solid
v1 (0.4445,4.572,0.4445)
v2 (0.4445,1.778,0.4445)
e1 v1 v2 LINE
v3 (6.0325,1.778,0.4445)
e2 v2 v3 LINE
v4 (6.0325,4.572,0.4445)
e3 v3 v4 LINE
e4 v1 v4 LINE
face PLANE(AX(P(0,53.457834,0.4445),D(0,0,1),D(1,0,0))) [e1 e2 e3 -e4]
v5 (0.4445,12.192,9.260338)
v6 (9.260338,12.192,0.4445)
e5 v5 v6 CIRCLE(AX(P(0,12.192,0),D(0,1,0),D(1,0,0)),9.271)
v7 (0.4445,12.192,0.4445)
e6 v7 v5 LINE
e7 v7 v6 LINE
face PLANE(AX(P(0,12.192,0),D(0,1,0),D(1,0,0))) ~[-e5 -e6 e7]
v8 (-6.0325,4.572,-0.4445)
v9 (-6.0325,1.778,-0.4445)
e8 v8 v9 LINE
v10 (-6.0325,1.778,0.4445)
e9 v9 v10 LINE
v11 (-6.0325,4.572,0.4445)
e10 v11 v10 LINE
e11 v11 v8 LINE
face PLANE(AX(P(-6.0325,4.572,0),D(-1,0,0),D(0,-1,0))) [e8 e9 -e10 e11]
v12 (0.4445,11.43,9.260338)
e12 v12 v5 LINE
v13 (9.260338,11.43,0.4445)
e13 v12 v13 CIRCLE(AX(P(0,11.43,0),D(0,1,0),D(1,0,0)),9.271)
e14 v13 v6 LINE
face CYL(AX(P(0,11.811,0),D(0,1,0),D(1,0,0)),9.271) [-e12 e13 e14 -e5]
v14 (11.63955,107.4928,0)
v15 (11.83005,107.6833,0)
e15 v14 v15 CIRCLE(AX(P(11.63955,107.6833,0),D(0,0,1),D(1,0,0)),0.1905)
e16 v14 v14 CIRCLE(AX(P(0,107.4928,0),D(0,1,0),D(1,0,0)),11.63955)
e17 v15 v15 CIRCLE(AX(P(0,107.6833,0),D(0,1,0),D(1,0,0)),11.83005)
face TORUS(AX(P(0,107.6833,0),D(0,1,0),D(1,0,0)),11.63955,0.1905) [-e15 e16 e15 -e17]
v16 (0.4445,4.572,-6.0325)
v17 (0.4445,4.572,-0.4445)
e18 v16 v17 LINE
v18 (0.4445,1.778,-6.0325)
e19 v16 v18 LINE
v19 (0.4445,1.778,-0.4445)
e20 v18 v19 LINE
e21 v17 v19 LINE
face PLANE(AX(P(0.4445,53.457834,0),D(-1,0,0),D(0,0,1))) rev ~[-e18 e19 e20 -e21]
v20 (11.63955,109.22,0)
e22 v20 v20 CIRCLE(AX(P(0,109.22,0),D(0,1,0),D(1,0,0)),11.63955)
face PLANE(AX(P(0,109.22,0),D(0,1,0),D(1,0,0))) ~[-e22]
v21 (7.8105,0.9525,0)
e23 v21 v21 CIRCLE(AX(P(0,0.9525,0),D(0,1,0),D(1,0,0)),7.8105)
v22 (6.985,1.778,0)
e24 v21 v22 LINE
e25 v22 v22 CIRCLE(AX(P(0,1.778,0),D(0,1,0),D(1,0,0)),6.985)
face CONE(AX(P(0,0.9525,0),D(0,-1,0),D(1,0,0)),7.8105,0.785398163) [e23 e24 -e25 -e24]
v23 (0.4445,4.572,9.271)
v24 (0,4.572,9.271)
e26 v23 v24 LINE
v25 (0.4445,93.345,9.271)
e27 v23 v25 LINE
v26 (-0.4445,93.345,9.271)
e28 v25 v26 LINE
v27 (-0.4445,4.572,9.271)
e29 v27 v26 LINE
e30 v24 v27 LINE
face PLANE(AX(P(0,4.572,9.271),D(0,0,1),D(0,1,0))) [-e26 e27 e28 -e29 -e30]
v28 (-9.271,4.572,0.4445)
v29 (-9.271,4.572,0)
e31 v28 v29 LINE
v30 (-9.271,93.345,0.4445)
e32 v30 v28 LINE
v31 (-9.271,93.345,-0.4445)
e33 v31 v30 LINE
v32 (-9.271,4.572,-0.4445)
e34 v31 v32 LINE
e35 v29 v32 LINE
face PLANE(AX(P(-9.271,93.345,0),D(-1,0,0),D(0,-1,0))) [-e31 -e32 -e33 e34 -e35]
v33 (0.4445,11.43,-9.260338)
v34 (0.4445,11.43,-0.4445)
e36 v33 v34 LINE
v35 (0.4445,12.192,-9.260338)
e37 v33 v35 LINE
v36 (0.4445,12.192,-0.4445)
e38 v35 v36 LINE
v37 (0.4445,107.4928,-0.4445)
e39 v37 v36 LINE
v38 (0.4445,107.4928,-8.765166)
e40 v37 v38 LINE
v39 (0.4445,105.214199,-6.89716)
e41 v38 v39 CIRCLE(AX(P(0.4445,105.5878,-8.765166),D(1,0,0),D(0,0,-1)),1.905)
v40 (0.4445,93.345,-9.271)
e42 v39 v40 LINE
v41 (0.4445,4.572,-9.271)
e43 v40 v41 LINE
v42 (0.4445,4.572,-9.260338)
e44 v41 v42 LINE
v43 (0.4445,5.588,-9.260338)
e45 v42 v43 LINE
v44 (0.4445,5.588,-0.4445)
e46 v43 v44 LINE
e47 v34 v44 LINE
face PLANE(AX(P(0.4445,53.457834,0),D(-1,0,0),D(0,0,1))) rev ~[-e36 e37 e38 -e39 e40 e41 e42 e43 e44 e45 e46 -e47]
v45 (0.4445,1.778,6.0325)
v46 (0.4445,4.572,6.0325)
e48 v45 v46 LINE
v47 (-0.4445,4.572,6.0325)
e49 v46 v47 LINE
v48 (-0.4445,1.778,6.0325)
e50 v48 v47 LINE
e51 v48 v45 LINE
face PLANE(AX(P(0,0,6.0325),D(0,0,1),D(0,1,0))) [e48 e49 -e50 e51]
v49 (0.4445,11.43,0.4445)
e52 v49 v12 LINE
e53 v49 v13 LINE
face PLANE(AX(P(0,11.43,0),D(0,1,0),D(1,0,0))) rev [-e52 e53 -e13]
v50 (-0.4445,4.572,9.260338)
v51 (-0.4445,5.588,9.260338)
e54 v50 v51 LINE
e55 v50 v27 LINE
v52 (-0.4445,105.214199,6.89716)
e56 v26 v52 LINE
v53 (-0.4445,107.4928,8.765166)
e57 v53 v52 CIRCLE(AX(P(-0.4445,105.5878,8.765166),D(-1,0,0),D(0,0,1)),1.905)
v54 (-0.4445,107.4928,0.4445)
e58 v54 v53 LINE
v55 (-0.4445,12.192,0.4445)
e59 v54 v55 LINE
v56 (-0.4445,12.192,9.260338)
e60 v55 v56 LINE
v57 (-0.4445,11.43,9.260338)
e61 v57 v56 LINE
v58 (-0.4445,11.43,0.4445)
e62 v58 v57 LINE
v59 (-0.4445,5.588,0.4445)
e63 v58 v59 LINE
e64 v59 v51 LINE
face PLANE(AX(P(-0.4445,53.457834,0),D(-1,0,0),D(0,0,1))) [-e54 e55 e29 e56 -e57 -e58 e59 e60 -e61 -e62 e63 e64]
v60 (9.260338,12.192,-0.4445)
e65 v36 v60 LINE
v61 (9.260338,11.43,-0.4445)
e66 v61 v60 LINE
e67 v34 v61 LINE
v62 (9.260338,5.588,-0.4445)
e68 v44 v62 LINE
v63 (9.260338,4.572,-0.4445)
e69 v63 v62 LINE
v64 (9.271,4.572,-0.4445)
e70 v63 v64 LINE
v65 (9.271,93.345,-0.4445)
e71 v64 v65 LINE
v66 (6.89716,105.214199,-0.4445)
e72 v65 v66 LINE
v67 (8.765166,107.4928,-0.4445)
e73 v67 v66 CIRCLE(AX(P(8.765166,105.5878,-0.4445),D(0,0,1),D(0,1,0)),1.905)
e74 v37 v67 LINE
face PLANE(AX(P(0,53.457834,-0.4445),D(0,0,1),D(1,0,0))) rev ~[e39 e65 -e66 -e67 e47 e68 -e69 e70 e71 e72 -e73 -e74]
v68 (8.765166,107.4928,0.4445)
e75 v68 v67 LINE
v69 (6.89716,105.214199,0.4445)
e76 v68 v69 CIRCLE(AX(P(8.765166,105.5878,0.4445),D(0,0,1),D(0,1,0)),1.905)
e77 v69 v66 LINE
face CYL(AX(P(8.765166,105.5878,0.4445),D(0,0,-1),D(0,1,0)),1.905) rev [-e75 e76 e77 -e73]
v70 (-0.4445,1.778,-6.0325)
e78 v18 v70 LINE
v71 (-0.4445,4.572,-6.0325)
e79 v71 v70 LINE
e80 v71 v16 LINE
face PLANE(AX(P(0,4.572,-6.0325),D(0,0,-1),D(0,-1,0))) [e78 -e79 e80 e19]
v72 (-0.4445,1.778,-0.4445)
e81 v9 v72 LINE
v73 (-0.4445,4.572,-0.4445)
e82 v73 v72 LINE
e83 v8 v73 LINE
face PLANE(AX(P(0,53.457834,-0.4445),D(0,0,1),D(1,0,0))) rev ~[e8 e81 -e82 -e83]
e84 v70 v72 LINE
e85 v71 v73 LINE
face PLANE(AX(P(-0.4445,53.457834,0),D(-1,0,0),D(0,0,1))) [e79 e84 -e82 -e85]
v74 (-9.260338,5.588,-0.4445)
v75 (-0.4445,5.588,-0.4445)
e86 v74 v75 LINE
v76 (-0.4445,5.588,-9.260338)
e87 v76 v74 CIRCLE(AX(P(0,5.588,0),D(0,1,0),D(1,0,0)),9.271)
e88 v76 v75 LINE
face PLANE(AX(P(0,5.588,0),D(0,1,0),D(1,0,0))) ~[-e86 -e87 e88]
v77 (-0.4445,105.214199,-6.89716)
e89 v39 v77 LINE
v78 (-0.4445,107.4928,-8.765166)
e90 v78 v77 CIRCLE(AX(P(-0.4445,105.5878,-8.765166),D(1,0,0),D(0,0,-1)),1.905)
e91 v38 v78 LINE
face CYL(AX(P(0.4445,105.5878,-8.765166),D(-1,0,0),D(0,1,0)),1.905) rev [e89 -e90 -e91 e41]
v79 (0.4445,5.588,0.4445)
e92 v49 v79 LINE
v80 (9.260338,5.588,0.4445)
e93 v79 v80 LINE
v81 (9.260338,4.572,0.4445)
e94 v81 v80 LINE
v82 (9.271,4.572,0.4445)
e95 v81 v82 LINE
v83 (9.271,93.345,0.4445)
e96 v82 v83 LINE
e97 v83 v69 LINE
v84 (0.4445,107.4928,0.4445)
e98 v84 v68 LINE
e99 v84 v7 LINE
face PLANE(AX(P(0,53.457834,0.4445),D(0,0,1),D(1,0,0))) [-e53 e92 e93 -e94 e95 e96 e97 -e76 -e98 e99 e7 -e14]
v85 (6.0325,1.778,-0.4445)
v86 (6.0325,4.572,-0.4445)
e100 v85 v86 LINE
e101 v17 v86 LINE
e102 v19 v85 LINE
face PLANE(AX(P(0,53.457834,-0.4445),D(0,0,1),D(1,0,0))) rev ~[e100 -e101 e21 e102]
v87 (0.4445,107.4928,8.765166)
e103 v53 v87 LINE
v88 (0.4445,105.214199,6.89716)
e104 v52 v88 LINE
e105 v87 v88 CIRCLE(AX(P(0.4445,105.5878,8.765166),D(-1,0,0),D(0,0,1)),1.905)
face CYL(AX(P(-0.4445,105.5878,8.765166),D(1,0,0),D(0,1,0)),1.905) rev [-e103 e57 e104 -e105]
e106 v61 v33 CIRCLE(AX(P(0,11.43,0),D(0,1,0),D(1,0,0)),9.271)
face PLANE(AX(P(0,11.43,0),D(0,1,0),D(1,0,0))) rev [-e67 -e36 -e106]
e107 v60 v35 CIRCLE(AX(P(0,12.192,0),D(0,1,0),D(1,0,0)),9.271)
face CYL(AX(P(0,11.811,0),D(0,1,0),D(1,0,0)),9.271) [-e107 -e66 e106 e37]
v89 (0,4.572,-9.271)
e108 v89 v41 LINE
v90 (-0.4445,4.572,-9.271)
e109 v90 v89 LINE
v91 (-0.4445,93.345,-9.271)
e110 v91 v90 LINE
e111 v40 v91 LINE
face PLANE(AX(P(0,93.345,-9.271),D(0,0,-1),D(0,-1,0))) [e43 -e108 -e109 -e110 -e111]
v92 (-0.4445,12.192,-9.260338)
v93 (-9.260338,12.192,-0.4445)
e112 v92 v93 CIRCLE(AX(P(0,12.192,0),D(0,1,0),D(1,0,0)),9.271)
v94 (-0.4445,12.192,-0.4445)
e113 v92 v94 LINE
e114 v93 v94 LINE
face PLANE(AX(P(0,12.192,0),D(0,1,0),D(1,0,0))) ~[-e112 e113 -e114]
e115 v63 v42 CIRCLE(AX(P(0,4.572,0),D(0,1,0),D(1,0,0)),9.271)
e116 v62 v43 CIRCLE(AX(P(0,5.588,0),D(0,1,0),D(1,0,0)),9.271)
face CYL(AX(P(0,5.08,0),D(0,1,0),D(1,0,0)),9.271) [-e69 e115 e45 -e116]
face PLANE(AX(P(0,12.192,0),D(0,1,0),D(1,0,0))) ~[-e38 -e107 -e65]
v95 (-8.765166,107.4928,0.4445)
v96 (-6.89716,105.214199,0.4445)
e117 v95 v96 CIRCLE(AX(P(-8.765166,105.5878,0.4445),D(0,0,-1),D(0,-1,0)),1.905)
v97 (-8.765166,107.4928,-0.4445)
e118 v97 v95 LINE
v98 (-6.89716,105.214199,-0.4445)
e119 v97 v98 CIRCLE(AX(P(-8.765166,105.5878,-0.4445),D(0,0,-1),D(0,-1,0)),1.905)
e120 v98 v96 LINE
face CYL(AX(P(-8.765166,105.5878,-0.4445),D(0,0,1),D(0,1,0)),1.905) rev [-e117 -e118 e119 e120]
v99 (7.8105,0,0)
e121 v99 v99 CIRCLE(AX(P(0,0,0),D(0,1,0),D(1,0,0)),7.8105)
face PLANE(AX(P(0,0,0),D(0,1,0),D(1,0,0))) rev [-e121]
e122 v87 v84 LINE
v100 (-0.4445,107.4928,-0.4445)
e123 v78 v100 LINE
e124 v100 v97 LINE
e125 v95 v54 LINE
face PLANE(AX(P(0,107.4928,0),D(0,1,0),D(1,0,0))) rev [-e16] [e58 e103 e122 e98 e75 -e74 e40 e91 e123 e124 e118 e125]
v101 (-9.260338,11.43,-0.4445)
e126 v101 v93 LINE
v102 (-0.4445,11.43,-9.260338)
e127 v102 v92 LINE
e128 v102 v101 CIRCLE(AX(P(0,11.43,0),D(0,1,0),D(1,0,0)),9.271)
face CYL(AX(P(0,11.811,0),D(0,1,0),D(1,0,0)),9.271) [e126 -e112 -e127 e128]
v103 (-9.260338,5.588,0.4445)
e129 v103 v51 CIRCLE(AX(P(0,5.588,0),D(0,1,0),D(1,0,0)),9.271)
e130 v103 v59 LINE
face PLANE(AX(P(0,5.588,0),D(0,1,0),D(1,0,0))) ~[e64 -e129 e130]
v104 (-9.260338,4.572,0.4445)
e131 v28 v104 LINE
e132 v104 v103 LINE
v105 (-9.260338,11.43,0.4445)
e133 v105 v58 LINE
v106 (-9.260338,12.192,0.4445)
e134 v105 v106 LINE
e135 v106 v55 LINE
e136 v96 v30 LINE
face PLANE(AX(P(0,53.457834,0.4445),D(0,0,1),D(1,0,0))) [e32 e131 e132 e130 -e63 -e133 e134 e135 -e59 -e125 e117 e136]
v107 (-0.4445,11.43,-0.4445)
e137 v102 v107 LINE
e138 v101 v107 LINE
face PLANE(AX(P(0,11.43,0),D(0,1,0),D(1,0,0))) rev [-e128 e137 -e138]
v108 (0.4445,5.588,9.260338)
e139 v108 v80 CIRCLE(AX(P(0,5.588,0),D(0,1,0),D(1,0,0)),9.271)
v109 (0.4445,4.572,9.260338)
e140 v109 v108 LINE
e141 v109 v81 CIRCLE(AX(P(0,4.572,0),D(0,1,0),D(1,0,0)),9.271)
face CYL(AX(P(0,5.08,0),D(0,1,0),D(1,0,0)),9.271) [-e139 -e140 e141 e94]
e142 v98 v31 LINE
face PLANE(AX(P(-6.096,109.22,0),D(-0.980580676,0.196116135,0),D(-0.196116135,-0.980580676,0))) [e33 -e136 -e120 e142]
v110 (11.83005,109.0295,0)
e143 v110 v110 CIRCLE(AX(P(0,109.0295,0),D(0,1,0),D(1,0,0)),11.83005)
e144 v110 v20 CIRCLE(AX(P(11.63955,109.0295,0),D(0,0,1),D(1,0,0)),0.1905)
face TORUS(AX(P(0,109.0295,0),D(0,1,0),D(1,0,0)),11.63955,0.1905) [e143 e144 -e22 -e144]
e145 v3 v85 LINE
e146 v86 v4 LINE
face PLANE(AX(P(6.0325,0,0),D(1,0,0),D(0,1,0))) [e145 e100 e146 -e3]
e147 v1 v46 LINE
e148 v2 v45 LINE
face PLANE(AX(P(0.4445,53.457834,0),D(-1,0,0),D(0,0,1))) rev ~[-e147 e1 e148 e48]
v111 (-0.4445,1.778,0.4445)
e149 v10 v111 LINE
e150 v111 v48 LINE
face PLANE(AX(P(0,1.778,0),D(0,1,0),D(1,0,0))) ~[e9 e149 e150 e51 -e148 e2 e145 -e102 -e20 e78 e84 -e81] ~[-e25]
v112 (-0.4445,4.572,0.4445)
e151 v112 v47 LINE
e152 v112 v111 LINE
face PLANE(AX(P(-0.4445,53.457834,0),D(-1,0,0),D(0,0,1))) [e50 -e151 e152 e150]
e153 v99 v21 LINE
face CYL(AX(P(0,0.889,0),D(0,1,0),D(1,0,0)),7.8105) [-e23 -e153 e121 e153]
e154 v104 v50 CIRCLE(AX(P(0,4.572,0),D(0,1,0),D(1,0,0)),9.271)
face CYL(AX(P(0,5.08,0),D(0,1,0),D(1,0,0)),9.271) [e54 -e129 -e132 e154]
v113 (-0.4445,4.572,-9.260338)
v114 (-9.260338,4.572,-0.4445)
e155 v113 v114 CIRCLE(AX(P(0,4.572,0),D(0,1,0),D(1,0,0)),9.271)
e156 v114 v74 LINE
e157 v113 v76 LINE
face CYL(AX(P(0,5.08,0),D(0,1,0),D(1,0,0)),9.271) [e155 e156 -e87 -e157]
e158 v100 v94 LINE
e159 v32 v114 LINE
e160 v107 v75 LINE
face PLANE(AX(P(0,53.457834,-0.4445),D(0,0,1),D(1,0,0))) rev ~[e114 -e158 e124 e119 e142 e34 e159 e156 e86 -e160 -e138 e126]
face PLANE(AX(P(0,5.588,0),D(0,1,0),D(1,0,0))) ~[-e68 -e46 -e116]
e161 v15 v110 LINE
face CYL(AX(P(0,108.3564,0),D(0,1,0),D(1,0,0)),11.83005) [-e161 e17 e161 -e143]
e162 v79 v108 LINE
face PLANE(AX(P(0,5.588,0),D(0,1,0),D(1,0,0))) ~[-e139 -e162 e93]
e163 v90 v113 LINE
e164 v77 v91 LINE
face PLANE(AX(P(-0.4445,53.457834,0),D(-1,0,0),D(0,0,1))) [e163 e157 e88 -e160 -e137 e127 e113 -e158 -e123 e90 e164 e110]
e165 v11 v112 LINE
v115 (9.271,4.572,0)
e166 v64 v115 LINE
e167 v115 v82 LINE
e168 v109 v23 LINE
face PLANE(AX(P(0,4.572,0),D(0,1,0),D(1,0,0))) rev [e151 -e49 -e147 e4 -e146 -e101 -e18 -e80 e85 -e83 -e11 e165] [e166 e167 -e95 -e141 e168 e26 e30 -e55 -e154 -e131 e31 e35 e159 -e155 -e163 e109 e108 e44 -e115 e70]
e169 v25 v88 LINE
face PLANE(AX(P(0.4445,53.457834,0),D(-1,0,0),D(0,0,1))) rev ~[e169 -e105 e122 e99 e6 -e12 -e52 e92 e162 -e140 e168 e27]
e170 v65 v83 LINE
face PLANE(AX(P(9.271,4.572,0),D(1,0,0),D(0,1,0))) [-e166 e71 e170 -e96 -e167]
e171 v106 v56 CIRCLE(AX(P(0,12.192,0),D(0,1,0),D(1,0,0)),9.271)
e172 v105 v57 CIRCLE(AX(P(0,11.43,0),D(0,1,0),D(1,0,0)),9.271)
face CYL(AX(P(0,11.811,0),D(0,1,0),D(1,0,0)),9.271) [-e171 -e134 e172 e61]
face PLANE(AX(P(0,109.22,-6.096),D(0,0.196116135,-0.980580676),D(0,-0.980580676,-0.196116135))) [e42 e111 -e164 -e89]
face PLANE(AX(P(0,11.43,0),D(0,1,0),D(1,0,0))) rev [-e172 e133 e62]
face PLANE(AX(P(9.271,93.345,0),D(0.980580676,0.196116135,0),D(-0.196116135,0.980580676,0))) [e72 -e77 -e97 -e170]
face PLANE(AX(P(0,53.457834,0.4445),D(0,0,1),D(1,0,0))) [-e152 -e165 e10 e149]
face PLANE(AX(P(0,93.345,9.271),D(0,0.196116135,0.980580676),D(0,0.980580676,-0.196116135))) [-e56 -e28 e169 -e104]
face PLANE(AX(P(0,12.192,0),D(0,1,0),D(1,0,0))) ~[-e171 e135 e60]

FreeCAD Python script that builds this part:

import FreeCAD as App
import Part
import Sketcher
Q = App.Units.Quantity


def edges_at(feature, points):
    """Names of the edges that pass closest to the given points."""
    edges = feature.Shape.Edges
    near = lambda p: min(range(len(edges)), key=lambda i: edges[i].distToShape(Part.Vertex(*p))[0])
    return sorted({f"Edge{near(p) + 1}" for p in points})

doc = App.newDocument("Part")
body = doc.addObject("PartDesign::Body", "Body")

# Sketch on XY plane
sketch1 = doc.addObject("Sketcher::SketchObject", "Sketch")
body.addObject(sketch1)
sketch1.AttachmentSupport = (doc.XY_Plane, [""])
sketch1.MapMode = "FlatFace"
sketch1.addGeometry([
    Part.LineSegment(App.Vector(-6, 0, 0), App.Vector(6, 0, 0)),  # 0
    Part.LineSegment(App.Vector(6, 0, 0), App.Vector(6, 4.6, 0)),  # 1
    Part.LineSegment(App.Vector(6, 4.6, 0), App.Vector(9.3, 4.6, 0)),  # 2
    Part.LineSegment(App.Vector(9.3, 4.6, 0), App.Vector(9.3, 93.3, 0)),  # 3
    Part.LineSegment(App.Vector(9.3, 93.3, 0), App.Vector(6.1, 109.2, 0)),  # 4
    Part.LineSegment(App.Vector(6.1, 109.2, 0), App.Vector(-6.1, 109.2, 0)),  # 5
    Part.LineSegment(App.Vector(-6.1, 109.2, 0), App.Vector(-9.3, 93.3, 0)),  # 6
    Part.LineSegment(App.Vector(-9.3, 93.3, 0), App.Vector(-9.3, 4.6, 0)),  # 7
    Part.LineSegment(App.Vector(-9.3, 4.6, 0), App.Vector(-6, 4.6, 0)),  # 8
    Part.LineSegment(App.Vector(-6, 4.6, 0), App.Vector(-6, 0, 0)),  # 9
], False)
sketch1.addConstraint([
    Sketcher.Constraint("Coincident", 0, 2, 1, 1),
    Sketcher.Constraint("Coincident", 1, 2, 2, 1),
    Sketcher.Constraint("Coincident", 2, 2, 3, 1),
    Sketcher.Constraint("Coincident", 3, 2, 4, 1),
    Sketcher.Constraint("Coincident", 4, 2, 5, 1),
    Sketcher.Constraint("Coincident", 5, 2, 6, 1),
    Sketcher.Constraint("Coincident", 6, 2, 7, 1),
    Sketcher.Constraint("Coincident", 7, 2, 8, 1),
    Sketcher.Constraint("Coincident", 8, 2, 9, 1),
    Sketcher.Constraint("Coincident", 9, 2, 0, 1),
    Sketcher.Constraint("Horizontal", 0),
    Sketcher.Constraint("Vertical", 1),
    Sketcher.Constraint("Horizontal", 2),
    Sketcher.Constraint("Vertical", 3),
    Sketcher.Constraint("Horizontal", 5),
    Sketcher.Constraint("Vertical", 7),
    Sketcher.Constraint("Horizontal", 8),
    Sketcher.Constraint("Vertical", 9),
    Sketcher.Constraint("Symmetric", 0, 2, 9, 2, -1, 1),
    Sketcher.Constraint("Symmetric", 3, 2, 6, 2, -2),
    Sketcher.Constraint("Horizontal", 2, 2, 7, 2),
    Sketcher.Constraint("Equal", 4, 6),
    Sketcher.Constraint("DistanceX", 5, 2, 5, 1, Q("0.48 in")),
    Sketcher.Constraint("DistanceY", 1, 1, 1, 2, Q("0.18 in")),
    Sketcher.Constraint("DistanceY", -1, 1, 4, 2, Q("4.3 in")),
    Sketcher.Constraint("DistanceX", 0, 1, 0, 2, Q("0.475 in")),
    Sketcher.Constraint("DistanceY", 3, 1, 3, 2, Q("3.495 in")),
    Sketcher.Constraint("DistanceX", 6, 2, 3, 2, Q("0.73 in")),
])
pad1 = doc.addObject("PartDesign::Pad", "Pad")
body.addObject(pad1)
pad1.Profile = sketch1
pad1.Length = Q("0.035 in")
pad1.Midplane = True
doc.recompute()

polarpattern = doc.addObject("PartDesign::PolarPattern", "PolarPattern")
body.addObject(polarpattern)
polarpattern.Originals = [pad1]
polarpattern.Axis = (doc.Y_Axis, [""])
polarpattern.Angle = 90
polarpattern.Occurrences = 2
polarpattern.Reversed = True
body.Tip = polarpattern

# Sketch on XY plane
sketch2 = doc.addObject("Sketcher::SketchObject", "Sketch001")
body.addObject(sketch2)
sketch2.AttachmentSupport = (doc.XY_Plane, [""])
sketch2.MapMode = "FlatFace"
sketch2.addGeometry([
    Part.LineSegment(App.Vector(0, 1.8, 0), App.Vector(0, 0, 0)),  # 0
    Part.LineSegment(App.Vector(0, 0, 0), App.Vector(7.8, 0, 0)),  # 1
    Part.LineSegment(App.Vector(7.8, 0, 0), App.Vector(7.8, 1.8, 0)),  # 2
    Part.LineSegment(App.Vector(7.8, 1.8, 0), App.Vector(0, 1.8, 0)),  # 3
    Part.LineSegment(App.Vector(0, 5.6, 0), App.Vector(0, 4.6, 0)),  # 4
    Part.LineSegment(App.Vector(0, 4.6, 0), App.Vector(9.3, 4.6, 0)),  # 5
    Part.LineSegment(App.Vector(9.3, 4.6, 0), App.Vector(9.3, 5.6, 0)),  # 6
    Part.LineSegment(App.Vector(9.3, 5.6, 0), App.Vector(0, 5.6, 0)),  # 7
    Part.LineSegment(App.Vector(0, 12.2, 0), App.Vector(0, 11.4, 0)),  # 8
    Part.LineSegment(App.Vector(0, 11.4, 0), App.Vector(9.3, 11.4, 0)),  # 9
    Part.LineSegment(App.Vector(9.3, 11.4, 0), App.Vector(9.3, 12.2, 0)),  # 10
    Part.LineSegment(App.Vector(9.3, 12.2, 0), App.Vector(0, 12.2, 0)),  # 11
    Part.LineSegment(App.Vector(0, 109.2, 0), App.Vector(0, 107.5, 0)),  # 12
    Part.LineSegment(App.Vector(0, 107.5, 0), App.Vector(11.8, 107.5, 0)),  # 13
    Part.LineSegment(App.Vector(11.8, 107.5, 0), App.Vector(11.8, 109.2, 0)),  # 14
    Part.LineSegment(App.Vector(11.8, 109.2, 0), App.Vector(0, 109.2, 0)),  # 15
], False)
sketch2.addConstraint([
    Sketcher.Constraint("Coincident", 0, 2, 1, 1),
    Sketcher.Constraint("Coincident", 1, 2, 2, 1),
    Sketcher.Constraint("Coincident", 2, 2, 3, 1),
    Sketcher.Constraint("Coincident", 3, 2, 0, 1),
    Sketcher.Constraint("Coincident", 4, 2, 5, 1),
    Sketcher.Constraint("Coincident", 5, 2, 6, 1),
    Sketcher.Constraint("Coincident", 6, 2, 7, 1),
    Sketcher.Constraint("Coincident", 7, 2, 4, 1),
    Sketcher.Constraint("Coincident", 8, 2, 9, 1),
    Sketcher.Constraint("Coincident", 9, 2, 10, 1),
    Sketcher.Constraint("Coincident", 10, 2, 11, 1),
    Sketcher.Constraint("Coincident", 11, 2, 8, 1),
    Sketcher.Constraint("Coincident", 12, 2, 13, 1),
    Sketcher.Constraint("Coincident", 13, 2, 14, 1),
    Sketcher.Constraint("Coincident", 14, 2, 15, 1),
    Sketcher.Constraint("Coincident", 15, 2, 12, 1),
    Sketcher.Constraint("Vertical", 0),
    Sketcher.Constraint("Horizontal", 1),
    Sketcher.Constraint("Vertical", 2),
    Sketcher.Constraint("Horizontal", 3),
    Sketcher.Constraint("Vertical", 4),
    Sketcher.Constraint("Horizontal", 5),
    Sketcher.Constraint("Vertical", 6),
    Sketcher.Constraint("Horizontal", 7),
    Sketcher.Constraint("Vertical", 8),
    Sketcher.Constraint("Horizontal", 9),
    Sketcher.Constraint("Vertical", 10),
    Sketcher.Constraint("Horizontal", 11),
    Sketcher.Constraint("Vertical", 12),
    Sketcher.Constraint("Horizontal", 13),
    Sketcher.Constraint("Vertical", 14),
    Sketcher.Constraint("Horizontal", 15),
    Sketcher.Constraint("Coincident", 0, 2, -1, 1),
    Sketcher.Constraint("PointOnObject", 4, 2, -2),
    Sketcher.Constraint("PointOnObject", 8, 2, -2),
    Sketcher.Constraint("PointOnObject", 12, 2, -2),
    Sketcher.Constraint("Vertical", 6, 2, 9, 2),
    Sketcher.Constraint("DistanceY", 0, 2, 0, 1, Q("0.07 in")),
    Sketcher.Constraint("DistanceY", 4, 2, 4, 1, Q("0.04 in")),
    Sketcher.Constraint("DistanceY", 8, 2, 8, 1, Q("0.03 in")),
    Sketcher.Constraint("DistanceY", -1, 1, 14, 2, Q("4.3 in")),
    Sketcher.Constraint("DistanceY", 5, 2, 10, 2, Q("0.3 in")),
    Sketcher.Constraint("DistanceX", 5, 1, 5, 2, Q("0.365 in")),
    Sketcher.Constraint("DistanceY", 12, 2, 12, 1, Q("0.068 in")),
    Sketcher.Constraint("DistanceY", -1, 1, 4, 2, Q("0.18 in")),
    Sketcher.Constraint("DistanceX", 1, 1, 1, 2, Q("0.3075 in")),
    Sketcher.Constraint("DistanceX", 13, 1, 13, 2, 11.83005),
])
revolution = doc.addObject("PartDesign::Revolution", "Revolution")
body.addObject(revolution)
revolution.Profile = sketch2
revolution.ReferenceAxis = (sketch2, ["V_Axis"])
revolution.Angle = 360
doc.recompute()

chamfer = doc.addObject("PartDesign::Chamfer", "Chamfer")
body.addObject(chamfer)
chamfer.Base = (revolution, edges_at(revolution, [(-7.811, 1.778, 0)]))
chamfer.Size = Q("0.0325 in")
doc.recompute()

fillet = doc.addObject("PartDesign::Fillet", "Fillet")
body.addObject(fillet)
fillet.Base = (chamfer, edges_at(chamfer, [
    (0, 107.493, 6.441),
    (0, 107.493, -6.441),
    (6.441, 107.493, 0),
    (-6.441, 107.493, 0),
]))
fillet.Radius = Q("0.075 in")
doc.recompute()

fillet2 = doc.addObject("PartDesign::Fillet", "Fillet001")
body.addObject(fillet2)
fillet2.Base = (fillet, edges_at(fillet, [(-11.83, 107.493, 0), (-11.83, 109.22, 0)]))
fillet2.Radius = Q("0.0075 in")

doc.recompute()
